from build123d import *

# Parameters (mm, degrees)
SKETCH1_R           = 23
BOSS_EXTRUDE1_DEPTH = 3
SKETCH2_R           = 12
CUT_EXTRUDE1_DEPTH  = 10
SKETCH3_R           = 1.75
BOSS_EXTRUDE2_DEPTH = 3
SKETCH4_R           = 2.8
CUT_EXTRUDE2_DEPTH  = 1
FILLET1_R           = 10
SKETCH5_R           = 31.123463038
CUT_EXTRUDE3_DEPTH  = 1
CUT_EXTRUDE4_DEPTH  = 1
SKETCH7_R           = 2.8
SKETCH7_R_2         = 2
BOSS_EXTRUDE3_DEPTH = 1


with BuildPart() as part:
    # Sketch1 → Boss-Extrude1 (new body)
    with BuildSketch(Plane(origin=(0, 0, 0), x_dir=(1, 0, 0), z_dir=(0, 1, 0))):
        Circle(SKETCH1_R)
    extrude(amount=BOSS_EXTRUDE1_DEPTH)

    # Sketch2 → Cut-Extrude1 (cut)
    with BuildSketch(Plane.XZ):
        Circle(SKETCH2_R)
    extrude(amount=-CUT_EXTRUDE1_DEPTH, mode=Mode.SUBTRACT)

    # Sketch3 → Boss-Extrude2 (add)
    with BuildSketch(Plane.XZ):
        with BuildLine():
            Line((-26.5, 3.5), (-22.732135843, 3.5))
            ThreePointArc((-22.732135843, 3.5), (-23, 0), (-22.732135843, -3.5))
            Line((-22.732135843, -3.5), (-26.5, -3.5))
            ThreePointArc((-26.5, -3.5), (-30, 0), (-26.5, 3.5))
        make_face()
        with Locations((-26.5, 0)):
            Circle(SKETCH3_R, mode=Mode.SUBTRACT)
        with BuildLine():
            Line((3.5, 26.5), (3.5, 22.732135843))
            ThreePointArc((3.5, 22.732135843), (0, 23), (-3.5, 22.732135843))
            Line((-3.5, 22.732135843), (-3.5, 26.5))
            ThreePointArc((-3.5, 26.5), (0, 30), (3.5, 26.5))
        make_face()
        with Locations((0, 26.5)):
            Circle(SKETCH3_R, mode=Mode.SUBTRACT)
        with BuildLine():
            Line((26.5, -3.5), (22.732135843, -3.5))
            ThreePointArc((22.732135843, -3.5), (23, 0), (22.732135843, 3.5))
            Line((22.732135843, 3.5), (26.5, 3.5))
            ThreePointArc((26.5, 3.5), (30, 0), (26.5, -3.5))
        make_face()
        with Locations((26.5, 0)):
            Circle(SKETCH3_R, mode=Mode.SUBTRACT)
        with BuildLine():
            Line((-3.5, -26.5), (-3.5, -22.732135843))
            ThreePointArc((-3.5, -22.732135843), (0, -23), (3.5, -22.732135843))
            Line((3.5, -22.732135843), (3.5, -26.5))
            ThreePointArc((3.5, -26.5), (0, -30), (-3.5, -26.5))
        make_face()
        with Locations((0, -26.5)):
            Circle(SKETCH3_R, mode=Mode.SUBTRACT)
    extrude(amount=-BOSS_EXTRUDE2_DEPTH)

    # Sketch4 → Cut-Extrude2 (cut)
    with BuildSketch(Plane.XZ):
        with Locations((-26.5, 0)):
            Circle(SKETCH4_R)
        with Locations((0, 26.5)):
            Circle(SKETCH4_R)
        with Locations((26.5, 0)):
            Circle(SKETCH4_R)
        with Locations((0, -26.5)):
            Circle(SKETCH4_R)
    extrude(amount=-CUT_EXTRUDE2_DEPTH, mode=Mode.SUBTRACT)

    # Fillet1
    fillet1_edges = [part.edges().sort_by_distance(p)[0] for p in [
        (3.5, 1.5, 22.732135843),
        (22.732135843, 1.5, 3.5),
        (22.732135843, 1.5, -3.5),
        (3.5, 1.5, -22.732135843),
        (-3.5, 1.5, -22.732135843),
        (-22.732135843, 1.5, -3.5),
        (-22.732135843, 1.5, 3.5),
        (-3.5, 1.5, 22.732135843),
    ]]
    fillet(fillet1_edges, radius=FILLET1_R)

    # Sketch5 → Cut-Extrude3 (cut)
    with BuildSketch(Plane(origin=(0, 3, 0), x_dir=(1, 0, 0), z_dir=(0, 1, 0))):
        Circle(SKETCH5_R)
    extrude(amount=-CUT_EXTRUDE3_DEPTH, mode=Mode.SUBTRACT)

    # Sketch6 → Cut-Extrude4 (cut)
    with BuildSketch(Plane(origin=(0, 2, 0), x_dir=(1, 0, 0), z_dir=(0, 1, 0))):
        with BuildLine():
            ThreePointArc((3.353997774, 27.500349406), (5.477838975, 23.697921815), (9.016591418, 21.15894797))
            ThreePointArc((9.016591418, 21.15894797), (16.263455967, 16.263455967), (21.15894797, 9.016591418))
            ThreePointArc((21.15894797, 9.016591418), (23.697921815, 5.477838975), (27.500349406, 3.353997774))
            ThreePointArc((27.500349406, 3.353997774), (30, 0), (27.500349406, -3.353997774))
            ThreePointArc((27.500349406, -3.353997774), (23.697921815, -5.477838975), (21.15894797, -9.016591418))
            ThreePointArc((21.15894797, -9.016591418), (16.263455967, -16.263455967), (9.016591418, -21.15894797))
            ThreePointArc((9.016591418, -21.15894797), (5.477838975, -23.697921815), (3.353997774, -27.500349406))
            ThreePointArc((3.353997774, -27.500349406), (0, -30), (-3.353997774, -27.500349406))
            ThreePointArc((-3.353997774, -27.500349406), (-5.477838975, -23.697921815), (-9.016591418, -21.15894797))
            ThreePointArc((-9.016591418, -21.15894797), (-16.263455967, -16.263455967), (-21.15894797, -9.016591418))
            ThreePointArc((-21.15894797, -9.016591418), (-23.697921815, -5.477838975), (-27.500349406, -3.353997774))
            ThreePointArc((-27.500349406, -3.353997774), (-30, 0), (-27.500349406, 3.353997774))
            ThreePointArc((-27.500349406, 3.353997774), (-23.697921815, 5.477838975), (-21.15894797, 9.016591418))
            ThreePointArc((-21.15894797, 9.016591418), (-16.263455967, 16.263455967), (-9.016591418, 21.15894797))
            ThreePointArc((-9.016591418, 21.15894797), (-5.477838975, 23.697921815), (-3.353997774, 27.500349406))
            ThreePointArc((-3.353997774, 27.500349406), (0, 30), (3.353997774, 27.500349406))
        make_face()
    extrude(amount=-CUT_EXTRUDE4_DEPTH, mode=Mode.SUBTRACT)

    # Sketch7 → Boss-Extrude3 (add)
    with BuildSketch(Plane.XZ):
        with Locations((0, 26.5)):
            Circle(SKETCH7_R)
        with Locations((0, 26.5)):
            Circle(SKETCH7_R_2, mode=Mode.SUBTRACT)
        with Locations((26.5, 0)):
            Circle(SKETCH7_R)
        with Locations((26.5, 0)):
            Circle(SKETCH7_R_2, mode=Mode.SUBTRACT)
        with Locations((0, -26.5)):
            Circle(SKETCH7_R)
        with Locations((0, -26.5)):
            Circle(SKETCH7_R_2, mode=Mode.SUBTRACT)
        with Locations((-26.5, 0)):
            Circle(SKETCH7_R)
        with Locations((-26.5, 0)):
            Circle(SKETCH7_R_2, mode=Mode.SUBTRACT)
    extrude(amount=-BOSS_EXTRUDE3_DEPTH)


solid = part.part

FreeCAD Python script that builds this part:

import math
import FreeCAD as App
import Part
import Sketcher

V = App.Vector
Q = App.Units.Quantity


def edges_at(feature, points):
    """Names of the edges that pass closest to the given points."""
    edges = feature.Shape.Edges
    near = lambda p: min(range(len(edges)), key=lambda i: edges[i].distToShape(Part.Vertex(*p))[0])
    return sorted({f"Edge{near(p) + 1}" for p in points})

doc = App.newDocument("Part")
body = doc.addObject("PartDesign::Body", "Body")

sketch1 = doc.addObject("Sketcher::SketchObject", "Sketch")
body.addObject(sketch1)
sketch1.AttachmentSupport = (doc.XZ_Plane, [""])
sketch1.MapMode = "FlatFace"
sketch1.addGeometry(Part.Circle(V(0, 0, 0), V(0, 0, 1), 23), False)
sketch1.addConstraint(Sketcher.Constraint("Coincident", 0, 3, -1, 1))
sketch1.addConstraint(Sketcher.Constraint("Diameter", 0, Q("46 mm")))
pad1 = doc.addObject("PartDesign::Pad", "Pad")
body.addObject(pad1)
pad1.Profile = sketch1
pad1.Length = 3
pad1.Reversed = True

sketch2 = doc.addObject("Sketcher::SketchObject", "Sketch001")
body.addObject(sketch2)
sketch2.AttachmentSupport = (doc.XZ_Plane, [""])
sketch2.MapMode = "FlatFace"
sketch2.addGeometry(Part.Circle(V(0, 0, 0), V(0, 0, 1), 12), False)
sketch2.addConstraint(Sketcher.Constraint("Coincident", 0, 3, -1, 1))
sketch2.addConstraint(Sketcher.Constraint("Diameter", 0, Q("24 mm")))
pocket1 = doc.addObject("PartDesign::Pocket", "Pocket")
body.addObject(pocket1)
pocket1.Profile = sketch2
pocket1.Length = 10

sketch3 = doc.addObject("Sketcher::SketchObject", "Sketch002")
body.addObject(sketch3)
sketch3.AttachmentSupport = (doc.XZ_Plane, [""])
sketch3.MapMode = "FlatFace"
sketch3.addGeometry(Part.LineSegment(V(-22.732136, 3.5, 0), V(-26.5, 3.5, 0)), False)
sketch3.addGeometry(Part.ArcOfCircle(Part.Circle(V(-26.5, 0, 0), V(0, 0, 1), 3.5), math.radians(90), math.radians(270)), False)
sketch3.addGeometry(Part.LineSegment(V(-26.5, -3.5, 0), V(-22.732136, -3.5, 0)), False)
sketch3.addGeometry(Part.ArcOfCircle(Part.Circle(V(0, 0, 0), V(0, 0, 1), 23), math.radians(171.247071), math.radians(188.752929)), False)
sketch3.addGeometry(Part.Circle(V(-26.5, 0, 0), V(0, 0, 1), 1.75), False)
sketch3.addGeometry(Part.LineSegment(V(3.5, 22.732136, 0), V(3.5, 26.5, 0)), False)
sketch3.addGeometry(Part.ArcOfCircle(Part.Circle(V(0, 26.5, 0), V(0, 0, 1), 3.5), math.radians(0), math.radians(180)), False)
sketch3.addGeometry(Part.LineSegment(V(-3.5, 26.5, 0), V(-3.5, 22.732136, 0)), False)
sketch3.addGeometry(Part.ArcOfCircle(Part.Circle(V(0, 0, 0), V(0, 0, 1), 23), math.radians(81.247071), math.radians(98.752929)), False)
sketch3.addGeometry(Part.Circle(V(0, 26.5, 0), V(0, 0, 1), 1.75), False)
sketch3.addGeometry(Part.LineSegment(V(22.732136, -3.5, 0), V(26.5, -3.5, 0)), False)
sketch3.addGeometry(Part.ArcOfCircle(Part.Circle(V(26.5, 0, 0), V(0, 0, 1), 3.5), math.radians(-90), math.radians(90)), False)
sketch3.addGeometry(Part.LineSegment(V(26.5, 3.5, 0), V(22.732136, 3.5, 0)), False)
sketch3.addGeometry(Part.ArcOfCircle(Part.Circle(V(0, 0, 0), V(0, 0, 1), 23), math.radians(-8.752929), math.radians(8.752929)), False)
sketch3.addGeometry(Part.Circle(V(26.5, 0, 0), V(0, 0, 1), 1.75), False)
sketch3.addGeometry(Part.LineSegment(V(-3.5, -22.732136, 0), V(-3.5, -26.5, 0)), False)
sketch3.addGeometry(Part.ArcOfCircle(Part.Circle(V(0, -26.5, 0), V(0, 0, 1), 3.5), math.radians(180), math.radians(360)), False)
sketch3.addGeometry(Part.LineSegment(V(3.5, -26.5, 0), V(3.5, -22.732136, 0)), False)
sketch3.addGeometry(Part.ArcOfCircle(Part.Circle(V(0, 0, 0), V(0, 0, 1), 23), math.radians(-98.752929), math.radians(-81.247071)), False)
sketch3.addGeometry(Part.Circle(V(0, -26.5, 0), V(0, 0, 1), 1.75), False)
sketch3.addConstraint(Sketcher.Constraint("Tangent", 0, 2, 1, 1))
sketch3.addConstraint(Sketcher.Constraint("Tangent", 1, 2, 2, 1))
sketch3.addConstraint(Sketcher.Constraint("Coincident", 2, 2, 3, 2))
sketch3.addConstraint(Sketcher.Constraint("Coincident", 3, 1, 0, 1))
sketch3.addConstraint(Sketcher.Constraint("Tangent", 5, 2, 6, 1))
sketch3.addConstraint(Sketcher.Constraint("Tangent", 6, 2, 7, 1))
sketch3.addConstraint(Sketcher.Constraint("Coincident", 7, 2, 8, 2))
sketch3.addConstraint(Sketcher.Constraint("Coincident", 8, 1, 5, 1))
sketch3.addConstraint(Sketcher.Constraint("Tangent", 10, 2, 11, 1))
sketch3.addConstraint(Sketcher.Constraint("Tangent", 11, 2, 12, 1))
sketch3.addConstraint(Sketcher.Constraint("Coincident", 12, 2, 13, 2))
sketch3.addConstraint(Sketcher.Constraint("Coincident", 13, 1, 10, 1))
sketch3.addConstraint(Sketcher.Constraint("Tangent", 15, 2, 16, 1))
sketch3.addConstraint(Sketcher.Constraint("Tangent", 16, 2, 17, 1))
sketch3.addConstraint(Sketcher.Constraint("Coincident", 17, 2, 18, 2))
sketch3.addConstraint(Sketcher.Constraint("Coincident", 18, 1, 15, 1))
sketch3.addConstraint(Sketcher.Constraint("Horizontal", 0))
sketch3.addConstraint(Sketcher.Constraint("Horizontal", 2))
sketch3.addConstraint(Sketcher.Constraint("Vertical", 5))
sketch3.addConstraint(Sketcher.Constraint("Vertical", 7))
sketch3.addConstraint(Sketcher.Constraint("Horizontal", 10))
sketch3.addConstraint(Sketcher.Constraint("Horizontal", 12))
sketch3.addConstraint(Sketcher.Constraint("Vertical", 15))
sketch3.addConstraint(Sketcher.Constraint("Vertical", 17))
sketch3.addConstraint(Sketcher.Constraint("Coincident", 3, 3, -1, 1))
sketch3.addConstraint(Sketcher.Constraint("Coincident", 8, 3, -1, 1))
sketch3.addConstraint(Sketcher.Constraint("Coincident", 13, 3, -1, 1))
sketch3.addConstraint(Sketcher.Constraint("Coincident", 18, 3, -1, 1))
sketch3.addConstraint(Sketcher.Constraint("Coincident", 4, 3, 1, 3))
sketch3.addConstraint(Sketcher.Constraint("Coincident", 9, 3, 6, 3))
sketch3.addConstraint(Sketcher.Constraint("Coincident", 14, 3, 11, 3))
sketch3.addConstraint(Sketcher.Constraint("Coincident", 19, 3, 16, 3))
sketch3.addConstraint(Sketcher.Constraint("Equal", 1, 6))
sketch3.addConstraint(Sketcher.Constraint("Equal", 3, 8))
sketch3.addConstraint(Sketcher.Constraint("Equal", 4, 9))
sketch3.addConstraint(Sketcher.Constraint("Equal", 6, 11))
sketch3.addConstraint(Sketcher.Constraint("Equal", 8, 13))
sketch3.addConstraint(Sketcher.Constraint("Equal", 9, 14))
sketch3.addConstraint(Sketcher.Constraint("Equal", 11, 16))
sketch3.addConstraint(Sketcher.Constraint("Equal", 13, 18))
sketch3.addConstraint(Sketcher.Constraint("Equal", 14, 19))
sketch3.addConstraint(Sketcher.Constraint("Symmetric", 1, 3, 11, 3, -1, 1))
sketch3.addConstraint(Sketcher.Constraint("Symmetric", 6, 3, 16, 3, -1, 1))
sketch3.addConstraint(Sketcher.Constraint("PointOnObject", 1, 3, -1))
sketch3.addConstraint(Sketcher.Constraint("PointOnObject", 6, 3, -2))
sketch3.addConstraint(Sketcher.Constraint("Equal", 12, 5))
sketch3.addConstraint(Sketcher.Constraint("Radius", 3, Q("23 mm")))
sketch3.addConstraint(Sketcher.Constraint("Diameter", 4, Q("3.5 mm")))
sketch3.addConstraint(Sketcher.Constraint("Radius", 1, Q("3.5 mm")))
sketch3.addConstraint(Sketcher.Constraint("DistanceX", 1, 3, 11, 3, Q("53 mm")))
pad2 = doc.addObject("PartDesign::Pad", "Pad001")
body.addObject(pad2)
pad2.Profile = sketch3
pad2.Length = 3
pad2.Reversed = True

sketch4 = doc.addObject("Sketcher::SketchObject", "Sketch003")
body.addObject(sketch4)
sketch4.AttachmentSupport = (doc.XZ_Plane, [""])
sketch4.MapMode = "FlatFace"
sketch4.addGeometry(Part.Circle(V(-26.5, 0, 0), V(0, 0, 1), 2.8), False)
sketch4.addGeometry(Part.Circle(V(0, 26.5, 0), V(0, 0, 1), 2.8), False)
sketch4.addGeometry(Part.Circle(V(26.5, 0, 0), V(0, 0, 1), 2.8), False)
sketch4.addGeometry(Part.Circle(V(0, -26.5, 0), V(0, 0, 1), 2.8), False)
sketch4.addConstraint(Sketcher.Constraint("Equal", 0, 1))
sketch4.addConstraint(Sketcher.Constraint("Equal", 1, 2))
sketch4.addConstraint(Sketcher.Constraint("Equal", 2, 3))
sketch4.addConstraint(Sketcher.Constraint("Symmetric", 0, 3, 2, 3, -1, 1))
sketch4.addConstraint(Sketcher.Constraint("Symmetric", 1, 3, 3, 3, -1, 1))
sketch4.addConstraint(Sketcher.Constraint("PointOnObject", 0, 3, -1))
sketch4.addConstraint(Sketcher.Constraint("PointOnObject", 1, 3, -2))
sketch4.addConstraint(Sketcher.Constraint("Diameter", 0, Q("5.6 mm")))
sketch4.addConstraint(Sketcher.Constraint("DistanceX", 0, 3, 2, 3, Q("53 mm")))
sketch4.addConstraint(Sketcher.Constraint("DistanceY", 3, 3, 1, 3, Q("53 mm")))
pocket2 = doc.addObject("PartDesign::Pocket", "Pocket001")
body.addObject(pocket2)
pocket2.Profile = sketch4
pocket2.Length = 1
doc.recompute()

fillet = doc.addObject("PartDesign::Fillet", "Fillet")
body.addObject(fillet)
fillet.Base = (pocket2, edges_at(pocket2, [
    (3.5, 1.5, 22.732),
    (22.732, 1.5, 3.5),
    (22.732, 1.5, -3.5),
    (3.5, 1.5, -22.732),
    (-3.5, 1.5, -22.732),
    (-22.732, 1.5, -3.5),
    (-22.732, 1.5, 3.5),
    (-3.5, 1.5, 22.732),
]))
fillet.Radius = 10

sketch5 = doc.addObject("Sketcher::SketchObject", "Sketch004")
body.addObject(sketch5)
sketch5.AttachmentSupport = (doc.XZ_Plane, [""])
sketch5.MapMode = "FlatFace"
sketch5.AttachmentOffset = App.Placement(V(0, 0, -3), App.Rotation())
sketch5.addGeometry(Part.Circle(V(0, 0, 0), V(0, 0, 1), 31.123463), False)
sketch5.addConstraint(Sketcher.Constraint("Coincident", 0, 3, -1, 1))
sketch5.addConstraint(Sketcher.Constraint("Diameter", 0, Q("62.246926 mm")))
pocket3 = doc.addObject("PartDesign::Pocket", "Pocket002")
body.addObject(pocket3)
pocket3.Profile = sketch5
pocket3.Length = 1
pocket3.Reversed = True

sketch6 = doc.addObject("Sketcher::SketchObject", "Sketch005")
body.addObject(sketch6)
sketch6.AttachmentSupport = (doc.XZ_Plane, [""])
sketch6.MapMode = "FlatFace"
sketch6.AttachmentOffset = App.Placement(V(0, 0, -2), App.Rotation())
sketch6.addGeometry(Part.ArcOfCircle(Part.Circle(V(12.936849, -30.358491, 0), V(0, 0, 1), 10), math.radians(113.080604), math.radians(163.392482)), False)
sketch6.addGeometry(Part.ArcOfCircle(Part.Circle(V(0, -26.5, 0), V(0, 0, 1), 3.5), math.radians(-163.392482), math.radians(-16.607518)), False)
sketch6.addGeometry(Part.ArcOfCircle(Part.Circle(V(-12.936849, -30.358491, 0), V(0, 0, 1), 10), math.radians(16.607518), math.radians(66.919396)), False)
sketch6.addGeometry(Part.ArcOfCircle(Part.Circle(V(0, 0, 0), V(0, 0, 1), 23), math.radians(-156.919396), math.radians(-113.080604)), False)
sketch6.addGeometry(Part.ArcOfCircle(Part.Circle(V(-30.358491, -12.936849, 0), V(0, 0, 1), 10), math.radians(23.080604), math.radians(73.392482)), False)
sketch6.addGeometry(Part.ArcOfCircle(Part.Circle(V(-26.5, 0, 0), V(0, 0, 1), 3.5), math.radians(106.607518), math.radians(253.392482)), False)
sketch6.addGeometry(Part.ArcOfCircle(Part.Circle(V(-30.358491, 12.936849, 0), V(0, 0, 1), 10), math.radians(-73.392482), math.radians(-23.080604)), False)
sketch6.addGeometry(Part.ArcOfCircle(Part.Circle(V(0, 0, 0), V(0, 0, 1), 23), math.radians(113.080604), math.radians(156.919396)), False)
sketch6.addGeometry(Part.ArcOfCircle(Part.Circle(V(-12.936849, 30.358491, 0), V(0, 0, 1), 10), math.radians(-66.919396), math.radians(-16.607518)), False)
sketch6.addGeometry(Part.ArcOfCircle(Part.Circle(V(0, 26.5, 0), V(0, 0, 1), 3.5), math.radians(16.607518), math.radians(163.392482)), False)
sketch6.addGeometry(Part.ArcOfCircle(Part.Circle(V(12.936849, 30.358491, 0), V(0, 0, 1), 10), math.radians(-163.392482), math.radians(-113.080604)), False)
sketch6.addGeometry(Part.ArcOfCircle(Part.Circle(V(0, 0, 0), V(0, 0, 1), 23), math.radians(23.080604), math.radians(66.919396)), False)
sketch6.addGeometry(Part.ArcOfCircle(Part.Circle(V(30.358491, 12.936849, 0), V(0, 0, 1), 10), math.radians(-156.919396), math.radians(-106.607518)), False)
sketch6.addGeometry(Part.ArcOfCircle(Part.Circle(V(26.5, 0, 0), V(0, 0, 1), 3.5), math.radians(-73.392482), math.radians(73.392482)), False)
sketch6.addGeometry(Part.ArcOfCircle(Part.Circle(V(30.358491, -12.936849, 0), V(0, 0, 1), 10), math.radians(106.607518), math.radians(156.919396)), False)
sketch6.addGeometry(Part.ArcOfCircle(Part.Circle(V(0, 0, 0), V(0, 0, 1), 23), math.radians(-66.919396), math.radians(-23.080604)), False)
sketch6.addConstraint(Sketcher.Constraint("Tangent", 0, 2, 1, 2))
sketch6.addConstraint(Sketcher.Constraint("Tangent", 1, 1, 2, 1))
sketch6.addConstraint(Sketcher.Constraint("Tangent", 2, 2, 3, 2))
sketch6.addConstraint(Sketcher.Constraint("Tangent", 3, 1, 4, 1))
sketch6.addConstraint(Sketcher.Constraint("Tangent", 4, 2, 5, 2))
sketch6.addConstraint(Sketcher.Constraint("Tangent", 5, 1, 6, 1))
sketch6.addConstraint(Sketcher.Constraint("Tangent", 6, 2, 7, 2))
sketch6.addConstraint(Sketcher.Constraint("Tangent", 7, 1, 8, 1))
sketch6.addConstraint(Sketcher.Constraint("Tangent", 8, 2, 9, 2))
sketch6.addConstraint(Sketcher.Constraint("Tangent", 9, 1, 10, 1))
sketch6.addConstraint(Sketcher.Constraint("Tangent", 10, 2, 11, 2))
sketch6.addConstraint(Sketcher.Constraint("Tangent", 11, 1, 12, 1))
sketch6.addConstraint(Sketcher.Constraint("Tangent", 12, 2, 13, 2))
sketch6.addConstraint(Sketcher.Constraint("Tangent", 13, 1, 14, 1))
sketch6.addConstraint(Sketcher.Constraint("Tangent", 14, 2, 15, 2))
sketch6.addConstraint(Sketcher.Constraint("Tangent", 15, 1, 0, 1))
sketch6.addConstraint(Sketcher.Constraint("Coincident", 3, 3, -1, 1))
sketch6.addConstraint(Sketcher.Constraint("Coincident", 7, 3, -1, 1))
sketch6.addConstraint(Sketcher.Constraint("Coincident", 11, 3, -1, 1))
sketch6.addConstraint(Sketcher.Constraint("Coincident", 15, 3, -1, 1))
sketch6.addConstraint(Sketcher.Constraint("Equal", 0, 2))
sketch6.addConstraint(Sketcher.Constraint("Equal", 2, 4))
sketch6.addConstraint(Sketcher.Constraint("Equal", 1, 5))
sketch6.addConstraint(Sketcher.Constraint("Equal", 4, 6))
sketch6.addConstraint(Sketcher.Constraint("Equal", 3, 7))
sketch6.addConstraint(Sketcher.Constraint("Equal", 6, 8))
sketch6.addConstraint(Sketcher.Constraint("Equal", 5, 9))
sketch6.addConstraint(Sketcher.Constraint("Equal", 8, 10))
sketch6.addConstraint(Sketcher.Constraint("Equal", 7, 11))
sketch6.addConstraint(Sketcher.Constraint("Equal", 10, 12))
sketch6.addConstraint(Sketcher.Constraint("Equal", 9, 13))
sketch6.addConstraint(Sketcher.Constraint("Equal", 12, 14))
sketch6.addConstraint(Sketcher.Constraint("Equal", 11, 15))
sketch6.addConstraint(Sketcher.Constraint("Symmetric", 1, 3, 9, 3, -1, 1))
sketch6.addConstraint(Sketcher.Constraint("Symmetric", 5, 3, 13, 3, -1, 1))
sketch6.addConstraint(Sketcher.Constraint("PointOnObject", 1, 3, -2))
sketch6.addConstraint(Sketcher.Constraint("PointOnObject", 5, 3, -1))
sketch6.addConstraint(Sketcher.Constraint("Radius", 0, Q("10 mm")))
sketch6.addConstraint(Sketcher.Constraint("Radius", 3, Q("23 mm")))
sketch6.addConstraint(Sketcher.Constraint("Radius", 1, Q("3.5 mm")))
sketch6.addConstraint(Sketcher.Constraint("DistanceY", 1, 3, -1, 1, Q("26.5 mm")))
sketch6.addConstraint(Sketcher.Constraint("DistanceX", 5, 3, -1, 1, Q("26.5 mm")))
pocket4 = doc.addObject("PartDesign::Pocket", "Pocket003")
body.addObject(pocket4)
pocket4.Profile = sketch6
pocket4.Length = 1
pocket4.Reversed = True

sketch7 = doc.addObject("Sketcher::SketchObject", "Sketch006")
body.addObject(sketch7)
sketch7.AttachmentSupport = (doc.XZ_Plane, [""])
sketch7.MapMode = "FlatFace"
sketch7.addGeometry(Part.Circle(V(0, 26.5, 0), V(0, 0, 1), 2.8), False)
sketch7.addGeometry(Part.Circle(V(0, 26.5, 0), V(0, 0, 1), 2), False)
sketch7.addGeometry(Part.Circle(V(26.5, 0, 0), V(0, 0, 1), 2.8), False)
sketch7.addGeometry(Part.Circle(V(26.5, 0, 0), V(0, 0, 1), 2), False)
sketch7.addGeometry(Part.Circle(V(0, -26.5, 0), V(0, 0, 1), 2.8), False)
sketch7.addGeometry(Part.Circle(V(0, -26.5, 0), V(0, 0, 1), 2), False)
sketch7.addGeometry(Part.Circle(V(-26.5, 0, 0), V(0, 0, 1), 2.8), False)
sketch7.addGeometry(Part.Circle(V(-26.5, 0, 0), V(0, 0, 1), 2), False)
sketch7.addConstraint(Sketcher.Constraint("Coincident", 1, 3, 0, 3))
sketch7.addConstraint(Sketcher.Constraint("Coincident", 3, 3, 2, 3))
sketch7.addConstraint(Sketcher.Constraint("Coincident", 5, 3, 4, 3))
sketch7.addConstraint(Sketcher.Constraint("Coincident", 7, 3, 6, 3))
sketch7.addConstraint(Sketcher.Constraint("Equal", 0, 2))
sketch7.addConstraint(Sketcher.Constraint("Equal", 1, 3))
sketch7.addConstraint(Sketcher.Constraint("Equal", 2, 4))
sketch7.addConstraint(Sketcher.Constraint("Equal", 3, 5))
sketch7.addConstraint(Sketcher.Constraint("Equal", 4, 6))
sketch7.addConstraint(Sketcher.Constraint("Equal", 5, 7))
sketch7.addConstraint(Sketcher.Constraint("Symmetric", 0, 3, 4, 3, -1, 1))
sketch7.addConstraint(Sketcher.Constraint("Symmetric", 2, 3, 6, 3, -1, 1))
sketch7.addConstraint(Sketcher.Constraint("PointOnObject", 0, 3, -2))
sketch7.addConstraint(Sketcher.Constraint("PointOnObject", 2, 3, -1))
sketch7.addConstraint(Sketcher.Constraint("Diameter", 1, Q("4 mm")))
sketch7.addConstraint(Sketcher.Constraint("Diameter", 0, Q("5.6 mm")))
sketch7.addConstraint(Sketcher.Constraint("DistanceY", 4, 3, 0, 3, Q("53 mm")))
sketch7.addConstraint(Sketcher.Constraint("DistanceX", 6, 3, 2, 3, Q("53 mm")))
pad3 = doc.addObject("PartDesign::Pad", "Pad002")
body.addObject(pad3)
pad3.Profile = sketch7
pad3.Length = 1
pad3.Reversed = True

doc.recompute()
